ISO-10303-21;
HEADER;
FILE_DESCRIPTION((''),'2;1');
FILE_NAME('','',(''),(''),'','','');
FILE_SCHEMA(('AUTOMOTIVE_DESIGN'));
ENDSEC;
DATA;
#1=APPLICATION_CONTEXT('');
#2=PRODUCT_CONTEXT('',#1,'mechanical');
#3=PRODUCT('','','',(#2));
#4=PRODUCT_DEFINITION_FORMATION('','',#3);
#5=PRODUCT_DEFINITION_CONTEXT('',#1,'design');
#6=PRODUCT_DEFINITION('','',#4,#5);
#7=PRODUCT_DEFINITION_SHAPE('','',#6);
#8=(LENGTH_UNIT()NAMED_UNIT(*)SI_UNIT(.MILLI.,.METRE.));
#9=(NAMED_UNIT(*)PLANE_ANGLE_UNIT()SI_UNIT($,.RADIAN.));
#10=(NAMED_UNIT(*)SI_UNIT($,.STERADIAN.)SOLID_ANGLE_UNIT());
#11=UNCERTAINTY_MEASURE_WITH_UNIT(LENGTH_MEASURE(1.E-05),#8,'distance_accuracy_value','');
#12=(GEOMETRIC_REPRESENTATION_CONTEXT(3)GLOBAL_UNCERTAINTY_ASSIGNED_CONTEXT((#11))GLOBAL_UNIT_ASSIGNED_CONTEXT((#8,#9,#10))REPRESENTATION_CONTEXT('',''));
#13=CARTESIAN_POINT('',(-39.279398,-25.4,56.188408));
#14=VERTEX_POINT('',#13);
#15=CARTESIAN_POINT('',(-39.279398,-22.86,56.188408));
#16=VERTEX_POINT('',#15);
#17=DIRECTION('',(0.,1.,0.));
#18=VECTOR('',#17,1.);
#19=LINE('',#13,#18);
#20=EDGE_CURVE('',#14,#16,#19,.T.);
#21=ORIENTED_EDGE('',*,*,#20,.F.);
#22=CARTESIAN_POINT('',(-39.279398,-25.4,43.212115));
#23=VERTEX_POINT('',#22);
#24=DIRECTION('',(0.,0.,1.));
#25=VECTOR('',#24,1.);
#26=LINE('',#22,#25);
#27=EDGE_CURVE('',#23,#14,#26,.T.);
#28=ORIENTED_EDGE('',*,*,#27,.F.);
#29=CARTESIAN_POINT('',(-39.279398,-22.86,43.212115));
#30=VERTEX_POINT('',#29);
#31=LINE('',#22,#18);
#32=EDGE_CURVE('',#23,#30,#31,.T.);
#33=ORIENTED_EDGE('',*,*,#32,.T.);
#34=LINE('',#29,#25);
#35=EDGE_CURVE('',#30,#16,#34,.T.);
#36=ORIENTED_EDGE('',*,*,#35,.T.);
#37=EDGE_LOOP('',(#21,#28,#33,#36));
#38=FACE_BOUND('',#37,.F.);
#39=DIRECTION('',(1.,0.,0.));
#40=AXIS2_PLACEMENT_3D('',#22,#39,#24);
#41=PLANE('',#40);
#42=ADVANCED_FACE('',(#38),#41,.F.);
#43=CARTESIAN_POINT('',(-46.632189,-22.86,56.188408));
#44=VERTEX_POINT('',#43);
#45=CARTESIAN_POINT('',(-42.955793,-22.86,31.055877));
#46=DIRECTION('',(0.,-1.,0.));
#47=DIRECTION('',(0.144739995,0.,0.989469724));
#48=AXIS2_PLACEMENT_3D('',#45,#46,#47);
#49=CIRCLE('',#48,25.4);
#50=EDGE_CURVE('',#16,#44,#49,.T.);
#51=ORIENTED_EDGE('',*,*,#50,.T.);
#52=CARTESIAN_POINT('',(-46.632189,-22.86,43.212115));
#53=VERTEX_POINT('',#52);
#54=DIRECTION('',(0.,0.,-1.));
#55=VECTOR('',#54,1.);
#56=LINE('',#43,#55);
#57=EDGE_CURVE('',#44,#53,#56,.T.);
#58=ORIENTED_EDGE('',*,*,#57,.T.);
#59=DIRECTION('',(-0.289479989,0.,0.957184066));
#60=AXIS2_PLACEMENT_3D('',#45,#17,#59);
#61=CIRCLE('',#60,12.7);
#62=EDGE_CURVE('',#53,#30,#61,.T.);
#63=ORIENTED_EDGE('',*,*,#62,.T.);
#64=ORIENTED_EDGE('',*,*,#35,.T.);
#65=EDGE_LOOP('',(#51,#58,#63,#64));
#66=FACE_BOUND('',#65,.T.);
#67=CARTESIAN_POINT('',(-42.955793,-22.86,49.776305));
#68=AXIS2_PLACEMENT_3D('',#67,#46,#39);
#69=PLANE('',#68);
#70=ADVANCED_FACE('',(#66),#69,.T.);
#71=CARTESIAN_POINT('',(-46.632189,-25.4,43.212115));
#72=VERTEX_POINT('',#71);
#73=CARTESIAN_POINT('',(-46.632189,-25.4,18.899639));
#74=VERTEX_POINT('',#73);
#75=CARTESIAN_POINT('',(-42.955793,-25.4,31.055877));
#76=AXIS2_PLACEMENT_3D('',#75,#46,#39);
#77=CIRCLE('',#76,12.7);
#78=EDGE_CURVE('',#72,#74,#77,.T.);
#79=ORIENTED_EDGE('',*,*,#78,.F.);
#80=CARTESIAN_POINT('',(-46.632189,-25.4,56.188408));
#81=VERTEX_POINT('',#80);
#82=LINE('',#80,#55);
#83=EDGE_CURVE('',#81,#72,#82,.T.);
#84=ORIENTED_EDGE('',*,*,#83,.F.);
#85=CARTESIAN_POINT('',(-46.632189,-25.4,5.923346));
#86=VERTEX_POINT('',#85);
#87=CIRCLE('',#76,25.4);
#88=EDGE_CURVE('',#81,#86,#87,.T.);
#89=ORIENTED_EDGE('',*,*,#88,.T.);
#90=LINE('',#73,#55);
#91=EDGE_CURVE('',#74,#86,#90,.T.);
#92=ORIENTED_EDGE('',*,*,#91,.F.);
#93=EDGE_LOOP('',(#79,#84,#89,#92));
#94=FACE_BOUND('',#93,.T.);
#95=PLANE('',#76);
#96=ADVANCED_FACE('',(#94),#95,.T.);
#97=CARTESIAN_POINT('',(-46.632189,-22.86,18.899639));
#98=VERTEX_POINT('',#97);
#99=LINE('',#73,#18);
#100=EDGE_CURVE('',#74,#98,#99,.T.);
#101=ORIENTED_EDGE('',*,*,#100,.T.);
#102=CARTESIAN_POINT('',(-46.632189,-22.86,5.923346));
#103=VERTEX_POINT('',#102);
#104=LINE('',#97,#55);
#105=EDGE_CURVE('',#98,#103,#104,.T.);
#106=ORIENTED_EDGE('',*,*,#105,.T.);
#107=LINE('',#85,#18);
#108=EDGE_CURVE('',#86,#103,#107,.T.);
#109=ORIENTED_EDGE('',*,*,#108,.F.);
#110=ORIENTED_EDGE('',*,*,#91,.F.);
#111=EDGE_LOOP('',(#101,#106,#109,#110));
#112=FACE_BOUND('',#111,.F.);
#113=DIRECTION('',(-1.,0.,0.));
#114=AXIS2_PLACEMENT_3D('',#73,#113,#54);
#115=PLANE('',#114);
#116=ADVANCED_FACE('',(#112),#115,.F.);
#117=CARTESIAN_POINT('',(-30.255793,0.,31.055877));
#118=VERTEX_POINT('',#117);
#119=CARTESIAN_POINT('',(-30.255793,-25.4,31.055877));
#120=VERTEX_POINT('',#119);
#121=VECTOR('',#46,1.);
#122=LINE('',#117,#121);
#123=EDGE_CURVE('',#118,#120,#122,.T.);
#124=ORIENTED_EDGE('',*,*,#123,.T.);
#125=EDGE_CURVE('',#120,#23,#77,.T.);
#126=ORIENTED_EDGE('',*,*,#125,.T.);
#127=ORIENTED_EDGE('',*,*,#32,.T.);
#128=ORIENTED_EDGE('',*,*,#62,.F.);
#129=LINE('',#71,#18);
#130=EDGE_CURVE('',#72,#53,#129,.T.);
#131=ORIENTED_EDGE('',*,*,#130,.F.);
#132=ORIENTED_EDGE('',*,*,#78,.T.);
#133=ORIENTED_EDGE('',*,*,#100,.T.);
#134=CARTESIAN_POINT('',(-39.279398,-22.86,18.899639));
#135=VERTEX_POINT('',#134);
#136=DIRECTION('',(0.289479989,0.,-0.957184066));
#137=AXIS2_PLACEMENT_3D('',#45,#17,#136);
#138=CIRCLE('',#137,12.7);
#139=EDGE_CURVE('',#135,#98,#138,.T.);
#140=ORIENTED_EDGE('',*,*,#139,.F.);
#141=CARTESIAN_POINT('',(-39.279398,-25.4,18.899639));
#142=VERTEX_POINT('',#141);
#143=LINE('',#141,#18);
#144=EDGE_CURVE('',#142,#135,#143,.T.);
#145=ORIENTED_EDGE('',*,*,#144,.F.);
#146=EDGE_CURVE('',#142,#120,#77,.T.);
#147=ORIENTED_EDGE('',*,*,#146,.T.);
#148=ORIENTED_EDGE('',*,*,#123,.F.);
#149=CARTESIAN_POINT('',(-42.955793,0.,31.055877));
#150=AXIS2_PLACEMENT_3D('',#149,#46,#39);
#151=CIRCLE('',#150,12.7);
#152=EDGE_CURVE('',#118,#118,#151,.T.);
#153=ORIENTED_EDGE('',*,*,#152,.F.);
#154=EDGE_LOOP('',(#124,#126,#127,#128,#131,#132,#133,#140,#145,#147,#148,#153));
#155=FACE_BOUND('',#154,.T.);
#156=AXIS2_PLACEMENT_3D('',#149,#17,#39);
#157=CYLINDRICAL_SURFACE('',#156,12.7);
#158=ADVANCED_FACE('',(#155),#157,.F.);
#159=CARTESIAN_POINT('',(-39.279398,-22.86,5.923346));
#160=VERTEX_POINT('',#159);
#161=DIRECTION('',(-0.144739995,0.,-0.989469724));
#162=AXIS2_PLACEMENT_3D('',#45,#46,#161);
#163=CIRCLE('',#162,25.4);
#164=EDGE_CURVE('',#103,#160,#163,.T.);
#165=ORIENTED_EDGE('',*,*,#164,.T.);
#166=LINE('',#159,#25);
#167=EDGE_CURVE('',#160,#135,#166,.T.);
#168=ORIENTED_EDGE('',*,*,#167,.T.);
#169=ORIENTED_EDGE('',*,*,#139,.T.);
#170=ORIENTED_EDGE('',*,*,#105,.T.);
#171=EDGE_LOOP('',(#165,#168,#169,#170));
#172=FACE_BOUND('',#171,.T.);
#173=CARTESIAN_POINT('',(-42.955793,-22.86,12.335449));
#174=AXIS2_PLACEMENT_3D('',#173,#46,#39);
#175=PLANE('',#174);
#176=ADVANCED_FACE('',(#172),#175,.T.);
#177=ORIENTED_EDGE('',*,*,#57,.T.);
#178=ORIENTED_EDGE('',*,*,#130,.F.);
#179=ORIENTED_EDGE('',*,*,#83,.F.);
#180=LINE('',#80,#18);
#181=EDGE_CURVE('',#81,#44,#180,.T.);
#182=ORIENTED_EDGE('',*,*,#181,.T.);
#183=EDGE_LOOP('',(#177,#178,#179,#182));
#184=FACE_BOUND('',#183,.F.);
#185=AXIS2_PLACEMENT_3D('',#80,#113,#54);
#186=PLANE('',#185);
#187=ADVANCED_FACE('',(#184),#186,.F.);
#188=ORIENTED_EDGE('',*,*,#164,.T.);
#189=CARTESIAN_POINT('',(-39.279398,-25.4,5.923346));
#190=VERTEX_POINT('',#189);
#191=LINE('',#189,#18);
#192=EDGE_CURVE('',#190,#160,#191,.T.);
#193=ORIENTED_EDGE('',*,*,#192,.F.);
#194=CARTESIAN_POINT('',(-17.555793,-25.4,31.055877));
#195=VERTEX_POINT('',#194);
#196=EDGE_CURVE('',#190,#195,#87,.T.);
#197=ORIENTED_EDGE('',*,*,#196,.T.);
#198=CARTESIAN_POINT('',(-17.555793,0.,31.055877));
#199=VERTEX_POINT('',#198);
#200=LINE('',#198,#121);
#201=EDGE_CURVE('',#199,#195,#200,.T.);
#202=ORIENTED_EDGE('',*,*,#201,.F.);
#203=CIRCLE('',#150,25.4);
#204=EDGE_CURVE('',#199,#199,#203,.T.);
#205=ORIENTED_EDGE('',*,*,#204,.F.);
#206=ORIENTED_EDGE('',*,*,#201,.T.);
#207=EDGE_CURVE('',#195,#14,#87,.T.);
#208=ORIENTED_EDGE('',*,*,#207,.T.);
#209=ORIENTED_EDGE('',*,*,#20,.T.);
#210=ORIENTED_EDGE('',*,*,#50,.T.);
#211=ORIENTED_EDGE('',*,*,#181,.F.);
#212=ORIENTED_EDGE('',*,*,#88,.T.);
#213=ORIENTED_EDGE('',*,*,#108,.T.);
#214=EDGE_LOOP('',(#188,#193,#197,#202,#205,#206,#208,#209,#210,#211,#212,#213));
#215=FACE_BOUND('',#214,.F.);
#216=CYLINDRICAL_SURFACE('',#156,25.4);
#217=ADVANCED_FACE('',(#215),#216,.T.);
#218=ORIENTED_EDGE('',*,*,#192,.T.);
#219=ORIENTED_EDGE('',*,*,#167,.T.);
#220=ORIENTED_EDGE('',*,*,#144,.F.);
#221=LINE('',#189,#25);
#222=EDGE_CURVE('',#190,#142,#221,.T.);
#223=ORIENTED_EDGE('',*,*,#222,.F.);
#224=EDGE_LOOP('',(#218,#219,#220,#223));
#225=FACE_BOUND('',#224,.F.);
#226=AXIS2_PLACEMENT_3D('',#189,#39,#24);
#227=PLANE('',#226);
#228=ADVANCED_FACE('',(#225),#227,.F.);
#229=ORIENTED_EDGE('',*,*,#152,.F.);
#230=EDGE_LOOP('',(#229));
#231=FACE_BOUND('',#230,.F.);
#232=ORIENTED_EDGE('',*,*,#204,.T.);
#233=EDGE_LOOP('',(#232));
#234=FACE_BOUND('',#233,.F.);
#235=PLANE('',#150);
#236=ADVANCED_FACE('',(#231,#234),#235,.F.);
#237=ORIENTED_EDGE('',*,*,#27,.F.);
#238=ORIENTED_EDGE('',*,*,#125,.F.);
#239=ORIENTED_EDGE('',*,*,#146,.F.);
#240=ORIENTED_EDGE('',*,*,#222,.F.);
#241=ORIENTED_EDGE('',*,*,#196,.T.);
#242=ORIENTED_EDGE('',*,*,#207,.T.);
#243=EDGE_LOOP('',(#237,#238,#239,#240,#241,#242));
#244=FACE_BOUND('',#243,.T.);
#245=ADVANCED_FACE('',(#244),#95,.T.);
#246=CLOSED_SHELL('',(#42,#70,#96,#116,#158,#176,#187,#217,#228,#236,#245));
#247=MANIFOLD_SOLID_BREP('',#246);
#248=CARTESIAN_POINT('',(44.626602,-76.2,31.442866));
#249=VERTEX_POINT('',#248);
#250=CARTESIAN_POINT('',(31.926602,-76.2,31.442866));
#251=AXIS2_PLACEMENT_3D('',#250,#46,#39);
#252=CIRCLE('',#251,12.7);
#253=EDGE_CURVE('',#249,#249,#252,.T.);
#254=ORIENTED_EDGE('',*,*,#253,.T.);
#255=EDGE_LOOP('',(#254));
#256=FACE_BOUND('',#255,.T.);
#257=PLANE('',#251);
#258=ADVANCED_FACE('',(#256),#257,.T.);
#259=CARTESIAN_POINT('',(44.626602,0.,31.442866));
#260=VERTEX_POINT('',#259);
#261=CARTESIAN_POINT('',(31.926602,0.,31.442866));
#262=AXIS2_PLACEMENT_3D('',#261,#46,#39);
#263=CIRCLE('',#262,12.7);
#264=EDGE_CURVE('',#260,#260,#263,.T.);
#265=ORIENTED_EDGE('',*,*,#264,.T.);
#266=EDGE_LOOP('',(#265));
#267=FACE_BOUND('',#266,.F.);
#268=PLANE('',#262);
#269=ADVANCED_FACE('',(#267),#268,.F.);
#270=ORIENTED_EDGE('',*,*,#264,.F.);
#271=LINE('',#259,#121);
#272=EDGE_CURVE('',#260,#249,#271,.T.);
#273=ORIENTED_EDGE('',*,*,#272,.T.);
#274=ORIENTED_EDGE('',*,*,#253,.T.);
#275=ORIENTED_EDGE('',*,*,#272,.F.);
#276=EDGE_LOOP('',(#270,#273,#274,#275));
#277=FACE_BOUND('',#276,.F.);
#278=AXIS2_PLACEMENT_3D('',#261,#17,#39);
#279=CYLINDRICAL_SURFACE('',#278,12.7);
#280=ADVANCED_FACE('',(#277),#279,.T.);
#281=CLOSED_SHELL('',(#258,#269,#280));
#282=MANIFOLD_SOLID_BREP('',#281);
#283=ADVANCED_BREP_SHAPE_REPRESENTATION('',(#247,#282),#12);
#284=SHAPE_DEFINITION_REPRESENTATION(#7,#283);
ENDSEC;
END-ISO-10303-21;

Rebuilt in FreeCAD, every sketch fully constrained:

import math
import FreeCAD as App
import Part
import Sketcher
from FreeCAD import Vector
Q = App.Units.Quantity

doc = App.newDocument("Part")
body = doc.addObject("PartDesign::Body", "Body")

# Sketch on XZ plane
sketch1 = doc.addObject("Sketcher::SketchObject", "Sketch")
body.addObject(sketch1)
sketch1.AttachmentSupport = (doc.XZ_Plane, [""])
sketch1.MapMode = "FlatFace"
sketch1.addGeometry(Part.Circle(Vector(32, 31, 0), Vector(0, 0, 1), 13), False)
sketch1.addConstraint(Sketcher.Constraint("Diameter", 0, Q("1 in")))
sketch1.addConstraint(Sketcher.Constraint("DistanceX", -1, 1, 0, 3, Q("31.926602 mm")))
sketch1.addConstraint(Sketcher.Constraint("DistanceY", -1, 1, 0, 3, Q("31.442866 mm")))
pad1 = doc.addObject("PartDesign::Pad", "Pad")
body.addObject(pad1)
pad1.Profile = sketch1
pad1.Length = Q("3 in")
body2 = doc.addObject("PartDesign::Body", "Body001")

# Sketch on XZ plane
sketch2 = doc.addObject("Sketcher::SketchObject", "Sketch001")
body2.addObject(sketch2)
sketch2.AttachmentSupport = (doc.getObject("XZ_Plane001"), [""])
sketch2.MapMode = "FlatFace"
sketch2.addGeometry(Part.Circle(Vector(-43, 31, 0), Vector(0, 0, 1), 25), False)
sketch2.addGeometry(Part.Circle(Vector(-43, 31, 0), Vector(0, 0, 1), 13), False)
sketch2.addConstraint(Sketcher.Constraint("Coincident", 1, 3, 0, 3))
sketch2.addConstraint(Sketcher.Constraint("Diameter", 0, Q("2 in")))
sketch2.addConstraint(Sketcher.Constraint("Diameter", 1, Q("1 in")))
sketch2.addConstraint(Sketcher.Constraint("DistanceX", 0, 3, -1, 1, Q("42.955793 mm")))
sketch2.addConstraint(Sketcher.Constraint("DistanceY", -1, 1, 0, 3, Q("31.055877 mm")))
pad2 = doc.addObject("PartDesign::Pad", "Pad001")
body2.addObject(pad2)
pad2.Profile = sketch2
pad2.Length = Q("1 in")

# Sketch on XZ plane
sketch3 = doc.addObject("Sketcher::SketchObject", "Sketch002")
body2.addObject(sketch3)
sketch3.AttachmentSupport = (doc.getObject("XZ_Plane001"), [""])
sketch3.MapMode = "FlatFace"
sketch3.AttachmentOffset = App.Placement(Vector(0, 0, 1 * 25.4), App.Rotation())
sketch3.addGeometry(Part.ArcOfCircle(Part.Circle(Vector(-43, 31, 0), Vector(0, 0, 1), 25), math.radians(81.68), math.radians(98.32)), False)
sketch3.addGeometry(Part.LineSegment(Vector(-47, 56, 0), Vector(-47, 43, 0)), False)
sketch3.addGeometry(Part.ArcOfCircle(Part.Circle(Vector(-43, 31, 0), Vector(0, 0, 1), 13), math.radians(73), math.radians(107)), False)
sketch3.addGeometry(Part.LineSegment(Vector(-39, 43, 0), Vector(-39, 56, 0)), False)
sketch3.addGeometry(Part.LineSegment(Vector(-47, 19, 0), Vector(-47, 6, 0)), False)
sketch3.addGeometry(Part.ArcOfCircle(Part.Circle(Vector(-43, 31, 0), Vector(0, 0, 1), 25), math.radians(-98.32), math.radians(-81.68)), False)
sketch3.addGeometry(Part.LineSegment(Vector(-39, 6, 0), Vector(-39, 19, 0)), False)
sketch3.addGeometry(Part.ArcOfCircle(Part.Circle(Vector(-43, 31, 0), Vector(0, 0, 1), 13), math.radians(-107), math.radians(-73)), False)
sketch3.addConstraint(Sketcher.Constraint("Coincident", 0, 2, 1, 1))
sketch3.addConstraint(Sketcher.Constraint("Coincident", 1, 2, 2, 2))
sketch3.addConstraint(Sketcher.Constraint("Coincident", 2, 1, 3, 1))
sketch3.addConstraint(Sketcher.Constraint("Coincident", 3, 2, 0, 1))
sketch3.addConstraint(Sketcher.Constraint("Coincident", 4, 2, 5, 1))
sketch3.addConstraint(Sketcher.Constraint("Coincident", 5, 2, 6, 1))
sketch3.addConstraint(Sketcher.Constraint("Coincident", 6, 2, 7, 2))
sketch3.addConstraint(Sketcher.Constraint("Coincident", 7, 1, 4, 1))
sketch3.addConstraint(Sketcher.Constraint("Vertical", 1))
sketch3.addConstraint(Sketcher.Constraint("Vertical", 3))
sketch3.addConstraint(Sketcher.Constraint("Vertical", 4))
sketch3.addConstraint(Sketcher.Constraint("Vertical", 6))
sketch3.addConstraint(Sketcher.Constraint("Coincident", 2, 3, 0, 3))
sketch3.addConstraint(Sketcher.Constraint("Coincident", 5, 3, 0, 3))
sketch3.addConstraint(Sketcher.Constraint("Coincident", 7, 3, 0, 3))
sketch3.addConstraint(Sketcher.Constraint("Equal", 0, 5))
sketch3.addConstraint(Sketcher.Constraint("Equal", 2, 7))
sketch3.addConstraint(Sketcher.Constraint("Horizontal", 1, 2, 2, 1))
sketch3.addConstraint(Sketcher.Constraint("Horizontal", 4, 2, 5, 2))
sketch3.addConstraint(Sketcher.Constraint("Vertical", 1, 2, 4, 2))
sketch3.addConstraint(Sketcher.Constraint("Radius", 0, Q("1 in")))
sketch3.addConstraint(Sketcher.Constraint("Radius", 2, Q("0.5 in")))
sketch3.addConstraint(Sketcher.Constraint("DistanceY", 1, 2, 1, 1, Q("12.976293 mm")))
sketch3.addConstraint(Sketcher.Constraint("DistanceX", 0, 2, -1, 1, Q("46.632189 mm")))
sketch3.addConstraint(Sketcher.Constraint("DistanceY", -1, 1, 6, 2, Q("18.899639 mm")))
pocket1 = doc.addObject("PartDesign::Pocket", "Pocket")
body2.addObject(pocket1)
pocket1.Profile = sketch3
pocket1.Length = Q("0.1 in")

doc.recompute()
